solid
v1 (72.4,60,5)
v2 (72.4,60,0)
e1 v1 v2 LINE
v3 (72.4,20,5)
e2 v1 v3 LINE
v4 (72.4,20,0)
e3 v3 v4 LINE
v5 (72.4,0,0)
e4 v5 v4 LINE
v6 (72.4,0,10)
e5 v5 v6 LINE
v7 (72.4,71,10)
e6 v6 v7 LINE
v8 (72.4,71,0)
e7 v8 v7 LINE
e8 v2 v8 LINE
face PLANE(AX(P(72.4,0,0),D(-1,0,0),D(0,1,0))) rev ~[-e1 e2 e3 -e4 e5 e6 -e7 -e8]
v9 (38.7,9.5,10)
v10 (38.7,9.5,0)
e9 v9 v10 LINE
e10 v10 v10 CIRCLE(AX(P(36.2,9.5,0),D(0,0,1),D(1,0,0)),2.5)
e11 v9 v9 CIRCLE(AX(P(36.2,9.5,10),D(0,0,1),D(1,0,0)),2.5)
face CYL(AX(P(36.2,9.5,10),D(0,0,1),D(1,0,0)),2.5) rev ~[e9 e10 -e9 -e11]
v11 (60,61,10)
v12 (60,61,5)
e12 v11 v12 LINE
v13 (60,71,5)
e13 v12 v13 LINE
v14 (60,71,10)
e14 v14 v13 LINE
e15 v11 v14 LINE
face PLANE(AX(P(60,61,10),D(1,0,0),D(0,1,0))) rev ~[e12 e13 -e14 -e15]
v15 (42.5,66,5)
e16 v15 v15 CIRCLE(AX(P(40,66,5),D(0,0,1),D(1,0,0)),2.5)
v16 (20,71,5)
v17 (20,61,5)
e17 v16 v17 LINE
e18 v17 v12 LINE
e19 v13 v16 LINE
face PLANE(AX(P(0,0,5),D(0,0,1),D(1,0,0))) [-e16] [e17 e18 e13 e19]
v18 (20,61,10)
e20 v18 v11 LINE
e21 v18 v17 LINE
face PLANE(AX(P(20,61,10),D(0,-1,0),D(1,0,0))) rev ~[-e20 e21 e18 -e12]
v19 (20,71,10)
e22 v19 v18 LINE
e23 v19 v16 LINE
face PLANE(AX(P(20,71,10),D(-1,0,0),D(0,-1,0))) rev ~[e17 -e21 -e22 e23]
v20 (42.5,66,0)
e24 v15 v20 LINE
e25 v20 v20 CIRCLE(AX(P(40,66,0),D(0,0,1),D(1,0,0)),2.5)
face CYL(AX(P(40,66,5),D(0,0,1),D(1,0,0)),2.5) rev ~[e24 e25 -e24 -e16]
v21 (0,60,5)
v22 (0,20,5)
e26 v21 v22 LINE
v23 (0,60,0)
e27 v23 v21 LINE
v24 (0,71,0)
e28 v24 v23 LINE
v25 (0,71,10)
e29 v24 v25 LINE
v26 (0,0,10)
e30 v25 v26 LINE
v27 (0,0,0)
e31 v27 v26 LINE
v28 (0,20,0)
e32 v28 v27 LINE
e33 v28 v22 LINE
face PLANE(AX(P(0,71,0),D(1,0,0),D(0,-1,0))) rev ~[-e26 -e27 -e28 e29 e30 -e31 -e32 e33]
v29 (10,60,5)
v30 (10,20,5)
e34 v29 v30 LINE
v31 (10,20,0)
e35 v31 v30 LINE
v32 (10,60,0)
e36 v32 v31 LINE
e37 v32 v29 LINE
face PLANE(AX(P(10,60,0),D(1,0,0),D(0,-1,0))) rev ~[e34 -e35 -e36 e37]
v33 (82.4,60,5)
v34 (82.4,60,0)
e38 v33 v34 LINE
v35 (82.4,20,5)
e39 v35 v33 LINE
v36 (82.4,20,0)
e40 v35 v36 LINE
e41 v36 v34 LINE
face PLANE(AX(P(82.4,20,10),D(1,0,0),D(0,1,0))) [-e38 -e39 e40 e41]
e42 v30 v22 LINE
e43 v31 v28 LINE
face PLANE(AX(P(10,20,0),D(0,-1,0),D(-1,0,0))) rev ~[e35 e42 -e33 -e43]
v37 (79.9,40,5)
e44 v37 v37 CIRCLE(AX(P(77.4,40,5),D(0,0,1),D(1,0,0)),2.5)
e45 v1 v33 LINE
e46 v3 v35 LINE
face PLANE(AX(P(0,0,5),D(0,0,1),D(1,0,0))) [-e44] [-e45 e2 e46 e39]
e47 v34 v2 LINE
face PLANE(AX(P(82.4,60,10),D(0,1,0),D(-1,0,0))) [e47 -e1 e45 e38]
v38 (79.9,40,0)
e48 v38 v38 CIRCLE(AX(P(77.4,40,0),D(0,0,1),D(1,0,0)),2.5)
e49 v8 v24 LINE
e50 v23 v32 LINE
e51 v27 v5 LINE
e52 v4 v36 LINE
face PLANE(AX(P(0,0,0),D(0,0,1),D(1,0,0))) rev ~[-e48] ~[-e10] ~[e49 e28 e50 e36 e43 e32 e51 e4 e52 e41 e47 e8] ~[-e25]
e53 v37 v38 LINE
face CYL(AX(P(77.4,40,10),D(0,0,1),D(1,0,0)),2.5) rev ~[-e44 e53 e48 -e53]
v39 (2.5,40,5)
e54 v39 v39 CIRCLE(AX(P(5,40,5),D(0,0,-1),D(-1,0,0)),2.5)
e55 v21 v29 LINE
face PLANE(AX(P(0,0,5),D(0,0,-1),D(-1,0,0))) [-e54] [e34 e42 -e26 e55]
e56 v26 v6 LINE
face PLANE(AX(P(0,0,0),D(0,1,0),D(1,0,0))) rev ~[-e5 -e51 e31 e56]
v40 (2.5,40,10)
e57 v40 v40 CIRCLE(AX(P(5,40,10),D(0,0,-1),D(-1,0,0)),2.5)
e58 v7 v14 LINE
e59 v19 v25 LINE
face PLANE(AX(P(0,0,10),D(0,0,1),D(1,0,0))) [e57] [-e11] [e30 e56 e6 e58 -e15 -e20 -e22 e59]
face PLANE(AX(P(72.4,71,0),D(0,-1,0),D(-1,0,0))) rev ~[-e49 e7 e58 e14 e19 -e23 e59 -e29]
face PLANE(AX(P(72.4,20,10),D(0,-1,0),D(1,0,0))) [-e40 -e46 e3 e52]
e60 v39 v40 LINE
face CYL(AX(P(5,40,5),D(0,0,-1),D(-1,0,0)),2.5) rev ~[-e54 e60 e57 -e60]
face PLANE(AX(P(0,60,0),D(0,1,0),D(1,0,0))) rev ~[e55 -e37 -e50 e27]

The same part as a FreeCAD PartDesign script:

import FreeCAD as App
import Part
import Sketcher
from FreeCAD import Vector


def add_polygon(sketch, points):
    """Adds a closed chain of lines whose ends are joined by coincident constraints."""
    first, n = sketch.GeometryCount, len(points)
    for a, b in zip(points, points[1:] + points[:1]):
        sketch.addGeometry(Part.LineSegment(App.Vector(*a, 0), App.Vector(*b, 0)), False)
    for i in range(n):
        sketch.addConstraint(Sketcher.Constraint("Coincident", first + i, 2, first + (i + 1) % n, 1))

doc = App.newDocument("Part")
body = doc.addObject("PartDesign::Body", "Body")

sketch1 = body.newObject("Sketcher::SketchObject", "Sketch")
sketch1.AttachmentSupport = (doc.getObject("XY_Plane"), [""])
sketch1.MapMode = "FlatFace"
add_polygon(sketch1, [(0, 71), (0, 0), (72, 0), (72, 71)])
sketch1.addConstraint(Sketcher.Constraint("Vertical", 0))
sketch1.addConstraint(Sketcher.Constraint("Horizontal", 1))
sketch1.addConstraint(Sketcher.Constraint("Vertical", 2))
sketch1.addConstraint(Sketcher.Constraint("Horizontal", 3))
sketch1.addConstraint(Sketcher.Constraint("Coincident", 0, 2, -1, 1))
sketch1.addConstraint(Sketcher.Constraint("DistanceY", 0, 2, 0, 1, 71.0))
sketch1.addConstraint(Sketcher.Constraint("DistanceX", 1, 1, 1, 2, 72.4))
pad1 = body.newObject("PartDesign::Pad", "Pad")
pad1.Profile = sketch1
pad1.Length = 10

sketch2 = body.newObject("Sketcher::SketchObject", "Sketch001")
sketch2.AttachmentSupport = (doc.getObject("XY_Plane"), [""])
sketch2.MapMode = "FlatFace"
sketch2.AttachmentOffset = App.Placement(Vector(0, 0, 10), App.Rotation())
add_polygon(sketch2, [(72.4, 60), (72.4, 20), (82.4, 20), (82.4, 60)])
sketch2.addGeometry(Part.Circle(Vector(77.4, 40, 0), Vector(0, 0, 1), 2.5), False)
sketch2.addConstraint(Sketcher.Constraint("Vertical", 0))
sketch2.addConstraint(Sketcher.Constraint("Horizontal", 1))
sketch2.addConstraint(Sketcher.Constraint("Vertical", 2))
sketch2.addConstraint(Sketcher.Constraint("Horizontal", 3))
sketch2.addConstraint(Sketcher.Constraint("Diameter", 4, 5.0))
sketch2.addConstraint(Sketcher.Constraint("DistanceX", 1, 1, 1, 2, 10.0))
sketch2.addConstraint(Sketcher.Constraint("DistanceY", 0, 2, 0, 1, 40.0))
sketch2.addConstraint(Sketcher.Constraint("DistanceY", -1, 1, 4, 3, 40.0))
sketch2.addConstraint(Sketcher.Constraint("DistanceY", -1, 1, 0, 2, 20.0))
sketch2.addConstraint(Sketcher.Constraint("DistanceX", 0, 2, 4, 3, 5.0))
sketch2.addConstraint(Sketcher.Constraint("DistanceX", -1, 1, 4, 3, 77.4))
pad2 = body.newObject("PartDesign::Pad", "Pad001")
pad2.Profile = sketch2
pad2.Length = 10
pad2.Reversed = True

sketch3 = body.newObject("Sketcher::SketchObject", "Sketch002")
sketch3.AttachmentSupport = (doc.getObject("XY_Plane"), [""])
sketch3.MapMode = "FlatFace"
sketch3.AttachmentOffset = App.Placement(Vector(0, 0, 10), App.Rotation())
add_polygon(sketch3, [(82, 60), (72, 60), (72, 20), (82, 20)])
sketch3.addConstraint(Sketcher.Constraint("Horizontal", 0))
sketch3.addConstraint(Sketcher.Constraint("Vertical", 1))
sketch3.addConstraint(Sketcher.Constraint("Horizontal", 2))
sketch3.addConstraint(Sketcher.Constraint("Vertical", 3))
sketch3.addConstraint(Sketcher.Constraint("DistanceX", 0, 2, 0, 1, 10.0))
sketch3.addConstraint(Sketcher.Constraint("DistanceY", 1, 2, 1, 1, 40.0))
sketch3.addConstraint(Sketcher.Constraint("DistanceY", -1, 1, 0, 2, 60.0))
sketch3.addConstraint(Sketcher.Constraint("DistanceX", -1, 1, 0, 2, 72.4))
pocket1 = body.newObject("PartDesign::Pocket", "Pocket")
pocket1.Profile = sketch3
pocket1.Length = 5

sketch4 = body.newObject("Sketcher::SketchObject", "Sketch003")
sketch4.AttachmentSupport = (doc.getObject("XY_Plane"), [""])
sketch4.MapMode = "FlatFace"
add_polygon(sketch4, [(0, 20), (0, 60), (10, 60), (10, 20)])
sketch4.addConstraint(Sketcher.Constraint("Vertical", 0))
sketch4.addConstraint(Sketcher.Constraint("Horizontal", 1))
sketch4.addConstraint(Sketcher.Constraint("Vertical", 2))
sketch4.addConstraint(Sketcher.Constraint("Horizontal", 3))
sketch4.addConstraint(Sketcher.Constraint("PointOnObject", 0, 2, -2))
sketch4.addConstraint(Sketcher.Constraint("DistanceX", 1, 1, 1, 2, 10.0))
sketch4.addConstraint(Sketcher.Constraint("DistanceY", 0, 1, 0, 2, 40.0))
sketch4.addConstraint(Sketcher.Constraint("DistanceY", -1, 1, 0, 2, 60.0))
pocket2 = body.newObject("PartDesign::Pocket", "Pocket001")
pocket2.Profile = sketch4
pocket2.Length = 5
pocket2.Reversed = True

sketch5 = body.newObject("Sketcher::SketchObject", "Sketch004")
sketch5.AttachmentSupport = (doc.getObject("XY_Plane"), [""])
sketch5.MapMode = "FlatFace"
sketch5.AttachmentOffset = App.Placement(Vector(0, 0, 5), App.Rotation())
sketch5.addGeometry(Part.Circle(Vector(5, 40, 0), Vector(0, 0, 1), 2.5), False)
sketch5.addConstraint(Sketcher.Constraint("Diameter", 0, 5.0))
sketch5.addConstraint(Sketcher.Constraint("DistanceX", -1, 1, 0, 3, 5.0))
sketch5.addConstraint(Sketcher.Constraint("DistanceY", -1, 1, 0, 3, 40.0))
pocket3 = body.newObject("PartDesign::Pocket", "Pocket002")
pocket3.Profile = sketch5
pocket3.Type = "ThroughAll"
pocket3.Reversed = True

sketch6 = body.newObject("Sketcher::SketchObject", "Sketch005")
sketch6.AttachmentSupport = (doc.getObject("XY_Plane"), [""])
sketch6.MapMode = "FlatFace"
sketch6.AttachmentOffset = App.Placement(Vector(0, 0, 10), App.Rotation())
add_polygon(sketch6, [(60, 61), (60, 71), (20, 71), (20, 61)])
sketch6.addConstraint(Sketcher.Constraint("Vertical", 0))
sketch6.addConstraint(Sketcher.Constraint("Horizontal", 1))
sketch6.addConstraint(Sketcher.Constraint("Vertical", 2))
sketch6.addConstraint(Sketcher.Constraint("Horizontal", 3))
sketch6.addConstraint(Sketcher.Constraint("DistanceX", 1, 2, 1, 1, 40.0))
sketch6.addConstraint(Sketcher.Constraint("DistanceY", 0, 1, 0, 2, 10.0))
sketch6.addConstraint(Sketcher.Constraint("DistanceX", -1, 1, 1, 2, 20.0))
sketch6.addConstraint(Sketcher.Constraint("DistanceY", -1, 1, 0, 2, 71.0))
pocket4 = body.newObject("PartDesign::Pocket", "Pocket003")
pocket4.Profile = sketch6
pocket4.Length = 5

sketch7 = body.newObject("Sketcher::SketchObject", "Sketch006")
sketch7.AttachmentSupport = (doc.getObject("XY_Plane"), [""])
sketch7.MapMode = "FlatFace"
sketch7.AttachmentOffset = App.Placement(Vector(0, 0, 5), App.Rotation())
sketch7.addGeometry(Part.Circle(Vector(40, 66, 0), Vector(0, 0, 1), 2.5), False)
sketch7.addConstraint(Sketcher.Constraint("Diameter", 0, 5.0))
sketch7.addConstraint(Sketcher.Constraint("DistanceX", -1, 1, 0, 3, 40.0))
sketch7.addConstraint(Sketcher.Constraint("DistanceY", -1, 1, 0, 3, 66.0))
pocket5 = body.newObject("PartDesign::Pocket", "Pocket004")
pocket5.Profile = sketch7
pocket5.Type = "ThroughAll"

sketch8 = body.newObject("Sketcher::SketchObject", "Sketch007")
sketch8.AttachmentSupport = (doc.getObject("XY_Plane"), [""])
sketch8.MapMode = "FlatFace"
sketch8.AttachmentOffset = App.Placement(Vector(0, 0, 10), App.Rotation())
sketch8.addGeometry(Part.Circle(Vector(36.2, 9.5, 0), Vector(0, 0, 1), 2.5), False)
sketch8.addConstraint(Sketcher.Constraint("Diameter", 0, 5.0))
sketch8.addConstraint(Sketcher.Constraint("DistanceY", -1, 1, 0, 3, 9.5))
sketch8.addConstraint(Sketcher.Constraint("DistanceX", -1, 1, 0, 3, 36.2))
pocket6 = body.newObject("PartDesign::Pocket", "Pocket005")
pocket6.Profile = sketch8
pocket6.Type = "ThroughAll"

doc.recompute()
